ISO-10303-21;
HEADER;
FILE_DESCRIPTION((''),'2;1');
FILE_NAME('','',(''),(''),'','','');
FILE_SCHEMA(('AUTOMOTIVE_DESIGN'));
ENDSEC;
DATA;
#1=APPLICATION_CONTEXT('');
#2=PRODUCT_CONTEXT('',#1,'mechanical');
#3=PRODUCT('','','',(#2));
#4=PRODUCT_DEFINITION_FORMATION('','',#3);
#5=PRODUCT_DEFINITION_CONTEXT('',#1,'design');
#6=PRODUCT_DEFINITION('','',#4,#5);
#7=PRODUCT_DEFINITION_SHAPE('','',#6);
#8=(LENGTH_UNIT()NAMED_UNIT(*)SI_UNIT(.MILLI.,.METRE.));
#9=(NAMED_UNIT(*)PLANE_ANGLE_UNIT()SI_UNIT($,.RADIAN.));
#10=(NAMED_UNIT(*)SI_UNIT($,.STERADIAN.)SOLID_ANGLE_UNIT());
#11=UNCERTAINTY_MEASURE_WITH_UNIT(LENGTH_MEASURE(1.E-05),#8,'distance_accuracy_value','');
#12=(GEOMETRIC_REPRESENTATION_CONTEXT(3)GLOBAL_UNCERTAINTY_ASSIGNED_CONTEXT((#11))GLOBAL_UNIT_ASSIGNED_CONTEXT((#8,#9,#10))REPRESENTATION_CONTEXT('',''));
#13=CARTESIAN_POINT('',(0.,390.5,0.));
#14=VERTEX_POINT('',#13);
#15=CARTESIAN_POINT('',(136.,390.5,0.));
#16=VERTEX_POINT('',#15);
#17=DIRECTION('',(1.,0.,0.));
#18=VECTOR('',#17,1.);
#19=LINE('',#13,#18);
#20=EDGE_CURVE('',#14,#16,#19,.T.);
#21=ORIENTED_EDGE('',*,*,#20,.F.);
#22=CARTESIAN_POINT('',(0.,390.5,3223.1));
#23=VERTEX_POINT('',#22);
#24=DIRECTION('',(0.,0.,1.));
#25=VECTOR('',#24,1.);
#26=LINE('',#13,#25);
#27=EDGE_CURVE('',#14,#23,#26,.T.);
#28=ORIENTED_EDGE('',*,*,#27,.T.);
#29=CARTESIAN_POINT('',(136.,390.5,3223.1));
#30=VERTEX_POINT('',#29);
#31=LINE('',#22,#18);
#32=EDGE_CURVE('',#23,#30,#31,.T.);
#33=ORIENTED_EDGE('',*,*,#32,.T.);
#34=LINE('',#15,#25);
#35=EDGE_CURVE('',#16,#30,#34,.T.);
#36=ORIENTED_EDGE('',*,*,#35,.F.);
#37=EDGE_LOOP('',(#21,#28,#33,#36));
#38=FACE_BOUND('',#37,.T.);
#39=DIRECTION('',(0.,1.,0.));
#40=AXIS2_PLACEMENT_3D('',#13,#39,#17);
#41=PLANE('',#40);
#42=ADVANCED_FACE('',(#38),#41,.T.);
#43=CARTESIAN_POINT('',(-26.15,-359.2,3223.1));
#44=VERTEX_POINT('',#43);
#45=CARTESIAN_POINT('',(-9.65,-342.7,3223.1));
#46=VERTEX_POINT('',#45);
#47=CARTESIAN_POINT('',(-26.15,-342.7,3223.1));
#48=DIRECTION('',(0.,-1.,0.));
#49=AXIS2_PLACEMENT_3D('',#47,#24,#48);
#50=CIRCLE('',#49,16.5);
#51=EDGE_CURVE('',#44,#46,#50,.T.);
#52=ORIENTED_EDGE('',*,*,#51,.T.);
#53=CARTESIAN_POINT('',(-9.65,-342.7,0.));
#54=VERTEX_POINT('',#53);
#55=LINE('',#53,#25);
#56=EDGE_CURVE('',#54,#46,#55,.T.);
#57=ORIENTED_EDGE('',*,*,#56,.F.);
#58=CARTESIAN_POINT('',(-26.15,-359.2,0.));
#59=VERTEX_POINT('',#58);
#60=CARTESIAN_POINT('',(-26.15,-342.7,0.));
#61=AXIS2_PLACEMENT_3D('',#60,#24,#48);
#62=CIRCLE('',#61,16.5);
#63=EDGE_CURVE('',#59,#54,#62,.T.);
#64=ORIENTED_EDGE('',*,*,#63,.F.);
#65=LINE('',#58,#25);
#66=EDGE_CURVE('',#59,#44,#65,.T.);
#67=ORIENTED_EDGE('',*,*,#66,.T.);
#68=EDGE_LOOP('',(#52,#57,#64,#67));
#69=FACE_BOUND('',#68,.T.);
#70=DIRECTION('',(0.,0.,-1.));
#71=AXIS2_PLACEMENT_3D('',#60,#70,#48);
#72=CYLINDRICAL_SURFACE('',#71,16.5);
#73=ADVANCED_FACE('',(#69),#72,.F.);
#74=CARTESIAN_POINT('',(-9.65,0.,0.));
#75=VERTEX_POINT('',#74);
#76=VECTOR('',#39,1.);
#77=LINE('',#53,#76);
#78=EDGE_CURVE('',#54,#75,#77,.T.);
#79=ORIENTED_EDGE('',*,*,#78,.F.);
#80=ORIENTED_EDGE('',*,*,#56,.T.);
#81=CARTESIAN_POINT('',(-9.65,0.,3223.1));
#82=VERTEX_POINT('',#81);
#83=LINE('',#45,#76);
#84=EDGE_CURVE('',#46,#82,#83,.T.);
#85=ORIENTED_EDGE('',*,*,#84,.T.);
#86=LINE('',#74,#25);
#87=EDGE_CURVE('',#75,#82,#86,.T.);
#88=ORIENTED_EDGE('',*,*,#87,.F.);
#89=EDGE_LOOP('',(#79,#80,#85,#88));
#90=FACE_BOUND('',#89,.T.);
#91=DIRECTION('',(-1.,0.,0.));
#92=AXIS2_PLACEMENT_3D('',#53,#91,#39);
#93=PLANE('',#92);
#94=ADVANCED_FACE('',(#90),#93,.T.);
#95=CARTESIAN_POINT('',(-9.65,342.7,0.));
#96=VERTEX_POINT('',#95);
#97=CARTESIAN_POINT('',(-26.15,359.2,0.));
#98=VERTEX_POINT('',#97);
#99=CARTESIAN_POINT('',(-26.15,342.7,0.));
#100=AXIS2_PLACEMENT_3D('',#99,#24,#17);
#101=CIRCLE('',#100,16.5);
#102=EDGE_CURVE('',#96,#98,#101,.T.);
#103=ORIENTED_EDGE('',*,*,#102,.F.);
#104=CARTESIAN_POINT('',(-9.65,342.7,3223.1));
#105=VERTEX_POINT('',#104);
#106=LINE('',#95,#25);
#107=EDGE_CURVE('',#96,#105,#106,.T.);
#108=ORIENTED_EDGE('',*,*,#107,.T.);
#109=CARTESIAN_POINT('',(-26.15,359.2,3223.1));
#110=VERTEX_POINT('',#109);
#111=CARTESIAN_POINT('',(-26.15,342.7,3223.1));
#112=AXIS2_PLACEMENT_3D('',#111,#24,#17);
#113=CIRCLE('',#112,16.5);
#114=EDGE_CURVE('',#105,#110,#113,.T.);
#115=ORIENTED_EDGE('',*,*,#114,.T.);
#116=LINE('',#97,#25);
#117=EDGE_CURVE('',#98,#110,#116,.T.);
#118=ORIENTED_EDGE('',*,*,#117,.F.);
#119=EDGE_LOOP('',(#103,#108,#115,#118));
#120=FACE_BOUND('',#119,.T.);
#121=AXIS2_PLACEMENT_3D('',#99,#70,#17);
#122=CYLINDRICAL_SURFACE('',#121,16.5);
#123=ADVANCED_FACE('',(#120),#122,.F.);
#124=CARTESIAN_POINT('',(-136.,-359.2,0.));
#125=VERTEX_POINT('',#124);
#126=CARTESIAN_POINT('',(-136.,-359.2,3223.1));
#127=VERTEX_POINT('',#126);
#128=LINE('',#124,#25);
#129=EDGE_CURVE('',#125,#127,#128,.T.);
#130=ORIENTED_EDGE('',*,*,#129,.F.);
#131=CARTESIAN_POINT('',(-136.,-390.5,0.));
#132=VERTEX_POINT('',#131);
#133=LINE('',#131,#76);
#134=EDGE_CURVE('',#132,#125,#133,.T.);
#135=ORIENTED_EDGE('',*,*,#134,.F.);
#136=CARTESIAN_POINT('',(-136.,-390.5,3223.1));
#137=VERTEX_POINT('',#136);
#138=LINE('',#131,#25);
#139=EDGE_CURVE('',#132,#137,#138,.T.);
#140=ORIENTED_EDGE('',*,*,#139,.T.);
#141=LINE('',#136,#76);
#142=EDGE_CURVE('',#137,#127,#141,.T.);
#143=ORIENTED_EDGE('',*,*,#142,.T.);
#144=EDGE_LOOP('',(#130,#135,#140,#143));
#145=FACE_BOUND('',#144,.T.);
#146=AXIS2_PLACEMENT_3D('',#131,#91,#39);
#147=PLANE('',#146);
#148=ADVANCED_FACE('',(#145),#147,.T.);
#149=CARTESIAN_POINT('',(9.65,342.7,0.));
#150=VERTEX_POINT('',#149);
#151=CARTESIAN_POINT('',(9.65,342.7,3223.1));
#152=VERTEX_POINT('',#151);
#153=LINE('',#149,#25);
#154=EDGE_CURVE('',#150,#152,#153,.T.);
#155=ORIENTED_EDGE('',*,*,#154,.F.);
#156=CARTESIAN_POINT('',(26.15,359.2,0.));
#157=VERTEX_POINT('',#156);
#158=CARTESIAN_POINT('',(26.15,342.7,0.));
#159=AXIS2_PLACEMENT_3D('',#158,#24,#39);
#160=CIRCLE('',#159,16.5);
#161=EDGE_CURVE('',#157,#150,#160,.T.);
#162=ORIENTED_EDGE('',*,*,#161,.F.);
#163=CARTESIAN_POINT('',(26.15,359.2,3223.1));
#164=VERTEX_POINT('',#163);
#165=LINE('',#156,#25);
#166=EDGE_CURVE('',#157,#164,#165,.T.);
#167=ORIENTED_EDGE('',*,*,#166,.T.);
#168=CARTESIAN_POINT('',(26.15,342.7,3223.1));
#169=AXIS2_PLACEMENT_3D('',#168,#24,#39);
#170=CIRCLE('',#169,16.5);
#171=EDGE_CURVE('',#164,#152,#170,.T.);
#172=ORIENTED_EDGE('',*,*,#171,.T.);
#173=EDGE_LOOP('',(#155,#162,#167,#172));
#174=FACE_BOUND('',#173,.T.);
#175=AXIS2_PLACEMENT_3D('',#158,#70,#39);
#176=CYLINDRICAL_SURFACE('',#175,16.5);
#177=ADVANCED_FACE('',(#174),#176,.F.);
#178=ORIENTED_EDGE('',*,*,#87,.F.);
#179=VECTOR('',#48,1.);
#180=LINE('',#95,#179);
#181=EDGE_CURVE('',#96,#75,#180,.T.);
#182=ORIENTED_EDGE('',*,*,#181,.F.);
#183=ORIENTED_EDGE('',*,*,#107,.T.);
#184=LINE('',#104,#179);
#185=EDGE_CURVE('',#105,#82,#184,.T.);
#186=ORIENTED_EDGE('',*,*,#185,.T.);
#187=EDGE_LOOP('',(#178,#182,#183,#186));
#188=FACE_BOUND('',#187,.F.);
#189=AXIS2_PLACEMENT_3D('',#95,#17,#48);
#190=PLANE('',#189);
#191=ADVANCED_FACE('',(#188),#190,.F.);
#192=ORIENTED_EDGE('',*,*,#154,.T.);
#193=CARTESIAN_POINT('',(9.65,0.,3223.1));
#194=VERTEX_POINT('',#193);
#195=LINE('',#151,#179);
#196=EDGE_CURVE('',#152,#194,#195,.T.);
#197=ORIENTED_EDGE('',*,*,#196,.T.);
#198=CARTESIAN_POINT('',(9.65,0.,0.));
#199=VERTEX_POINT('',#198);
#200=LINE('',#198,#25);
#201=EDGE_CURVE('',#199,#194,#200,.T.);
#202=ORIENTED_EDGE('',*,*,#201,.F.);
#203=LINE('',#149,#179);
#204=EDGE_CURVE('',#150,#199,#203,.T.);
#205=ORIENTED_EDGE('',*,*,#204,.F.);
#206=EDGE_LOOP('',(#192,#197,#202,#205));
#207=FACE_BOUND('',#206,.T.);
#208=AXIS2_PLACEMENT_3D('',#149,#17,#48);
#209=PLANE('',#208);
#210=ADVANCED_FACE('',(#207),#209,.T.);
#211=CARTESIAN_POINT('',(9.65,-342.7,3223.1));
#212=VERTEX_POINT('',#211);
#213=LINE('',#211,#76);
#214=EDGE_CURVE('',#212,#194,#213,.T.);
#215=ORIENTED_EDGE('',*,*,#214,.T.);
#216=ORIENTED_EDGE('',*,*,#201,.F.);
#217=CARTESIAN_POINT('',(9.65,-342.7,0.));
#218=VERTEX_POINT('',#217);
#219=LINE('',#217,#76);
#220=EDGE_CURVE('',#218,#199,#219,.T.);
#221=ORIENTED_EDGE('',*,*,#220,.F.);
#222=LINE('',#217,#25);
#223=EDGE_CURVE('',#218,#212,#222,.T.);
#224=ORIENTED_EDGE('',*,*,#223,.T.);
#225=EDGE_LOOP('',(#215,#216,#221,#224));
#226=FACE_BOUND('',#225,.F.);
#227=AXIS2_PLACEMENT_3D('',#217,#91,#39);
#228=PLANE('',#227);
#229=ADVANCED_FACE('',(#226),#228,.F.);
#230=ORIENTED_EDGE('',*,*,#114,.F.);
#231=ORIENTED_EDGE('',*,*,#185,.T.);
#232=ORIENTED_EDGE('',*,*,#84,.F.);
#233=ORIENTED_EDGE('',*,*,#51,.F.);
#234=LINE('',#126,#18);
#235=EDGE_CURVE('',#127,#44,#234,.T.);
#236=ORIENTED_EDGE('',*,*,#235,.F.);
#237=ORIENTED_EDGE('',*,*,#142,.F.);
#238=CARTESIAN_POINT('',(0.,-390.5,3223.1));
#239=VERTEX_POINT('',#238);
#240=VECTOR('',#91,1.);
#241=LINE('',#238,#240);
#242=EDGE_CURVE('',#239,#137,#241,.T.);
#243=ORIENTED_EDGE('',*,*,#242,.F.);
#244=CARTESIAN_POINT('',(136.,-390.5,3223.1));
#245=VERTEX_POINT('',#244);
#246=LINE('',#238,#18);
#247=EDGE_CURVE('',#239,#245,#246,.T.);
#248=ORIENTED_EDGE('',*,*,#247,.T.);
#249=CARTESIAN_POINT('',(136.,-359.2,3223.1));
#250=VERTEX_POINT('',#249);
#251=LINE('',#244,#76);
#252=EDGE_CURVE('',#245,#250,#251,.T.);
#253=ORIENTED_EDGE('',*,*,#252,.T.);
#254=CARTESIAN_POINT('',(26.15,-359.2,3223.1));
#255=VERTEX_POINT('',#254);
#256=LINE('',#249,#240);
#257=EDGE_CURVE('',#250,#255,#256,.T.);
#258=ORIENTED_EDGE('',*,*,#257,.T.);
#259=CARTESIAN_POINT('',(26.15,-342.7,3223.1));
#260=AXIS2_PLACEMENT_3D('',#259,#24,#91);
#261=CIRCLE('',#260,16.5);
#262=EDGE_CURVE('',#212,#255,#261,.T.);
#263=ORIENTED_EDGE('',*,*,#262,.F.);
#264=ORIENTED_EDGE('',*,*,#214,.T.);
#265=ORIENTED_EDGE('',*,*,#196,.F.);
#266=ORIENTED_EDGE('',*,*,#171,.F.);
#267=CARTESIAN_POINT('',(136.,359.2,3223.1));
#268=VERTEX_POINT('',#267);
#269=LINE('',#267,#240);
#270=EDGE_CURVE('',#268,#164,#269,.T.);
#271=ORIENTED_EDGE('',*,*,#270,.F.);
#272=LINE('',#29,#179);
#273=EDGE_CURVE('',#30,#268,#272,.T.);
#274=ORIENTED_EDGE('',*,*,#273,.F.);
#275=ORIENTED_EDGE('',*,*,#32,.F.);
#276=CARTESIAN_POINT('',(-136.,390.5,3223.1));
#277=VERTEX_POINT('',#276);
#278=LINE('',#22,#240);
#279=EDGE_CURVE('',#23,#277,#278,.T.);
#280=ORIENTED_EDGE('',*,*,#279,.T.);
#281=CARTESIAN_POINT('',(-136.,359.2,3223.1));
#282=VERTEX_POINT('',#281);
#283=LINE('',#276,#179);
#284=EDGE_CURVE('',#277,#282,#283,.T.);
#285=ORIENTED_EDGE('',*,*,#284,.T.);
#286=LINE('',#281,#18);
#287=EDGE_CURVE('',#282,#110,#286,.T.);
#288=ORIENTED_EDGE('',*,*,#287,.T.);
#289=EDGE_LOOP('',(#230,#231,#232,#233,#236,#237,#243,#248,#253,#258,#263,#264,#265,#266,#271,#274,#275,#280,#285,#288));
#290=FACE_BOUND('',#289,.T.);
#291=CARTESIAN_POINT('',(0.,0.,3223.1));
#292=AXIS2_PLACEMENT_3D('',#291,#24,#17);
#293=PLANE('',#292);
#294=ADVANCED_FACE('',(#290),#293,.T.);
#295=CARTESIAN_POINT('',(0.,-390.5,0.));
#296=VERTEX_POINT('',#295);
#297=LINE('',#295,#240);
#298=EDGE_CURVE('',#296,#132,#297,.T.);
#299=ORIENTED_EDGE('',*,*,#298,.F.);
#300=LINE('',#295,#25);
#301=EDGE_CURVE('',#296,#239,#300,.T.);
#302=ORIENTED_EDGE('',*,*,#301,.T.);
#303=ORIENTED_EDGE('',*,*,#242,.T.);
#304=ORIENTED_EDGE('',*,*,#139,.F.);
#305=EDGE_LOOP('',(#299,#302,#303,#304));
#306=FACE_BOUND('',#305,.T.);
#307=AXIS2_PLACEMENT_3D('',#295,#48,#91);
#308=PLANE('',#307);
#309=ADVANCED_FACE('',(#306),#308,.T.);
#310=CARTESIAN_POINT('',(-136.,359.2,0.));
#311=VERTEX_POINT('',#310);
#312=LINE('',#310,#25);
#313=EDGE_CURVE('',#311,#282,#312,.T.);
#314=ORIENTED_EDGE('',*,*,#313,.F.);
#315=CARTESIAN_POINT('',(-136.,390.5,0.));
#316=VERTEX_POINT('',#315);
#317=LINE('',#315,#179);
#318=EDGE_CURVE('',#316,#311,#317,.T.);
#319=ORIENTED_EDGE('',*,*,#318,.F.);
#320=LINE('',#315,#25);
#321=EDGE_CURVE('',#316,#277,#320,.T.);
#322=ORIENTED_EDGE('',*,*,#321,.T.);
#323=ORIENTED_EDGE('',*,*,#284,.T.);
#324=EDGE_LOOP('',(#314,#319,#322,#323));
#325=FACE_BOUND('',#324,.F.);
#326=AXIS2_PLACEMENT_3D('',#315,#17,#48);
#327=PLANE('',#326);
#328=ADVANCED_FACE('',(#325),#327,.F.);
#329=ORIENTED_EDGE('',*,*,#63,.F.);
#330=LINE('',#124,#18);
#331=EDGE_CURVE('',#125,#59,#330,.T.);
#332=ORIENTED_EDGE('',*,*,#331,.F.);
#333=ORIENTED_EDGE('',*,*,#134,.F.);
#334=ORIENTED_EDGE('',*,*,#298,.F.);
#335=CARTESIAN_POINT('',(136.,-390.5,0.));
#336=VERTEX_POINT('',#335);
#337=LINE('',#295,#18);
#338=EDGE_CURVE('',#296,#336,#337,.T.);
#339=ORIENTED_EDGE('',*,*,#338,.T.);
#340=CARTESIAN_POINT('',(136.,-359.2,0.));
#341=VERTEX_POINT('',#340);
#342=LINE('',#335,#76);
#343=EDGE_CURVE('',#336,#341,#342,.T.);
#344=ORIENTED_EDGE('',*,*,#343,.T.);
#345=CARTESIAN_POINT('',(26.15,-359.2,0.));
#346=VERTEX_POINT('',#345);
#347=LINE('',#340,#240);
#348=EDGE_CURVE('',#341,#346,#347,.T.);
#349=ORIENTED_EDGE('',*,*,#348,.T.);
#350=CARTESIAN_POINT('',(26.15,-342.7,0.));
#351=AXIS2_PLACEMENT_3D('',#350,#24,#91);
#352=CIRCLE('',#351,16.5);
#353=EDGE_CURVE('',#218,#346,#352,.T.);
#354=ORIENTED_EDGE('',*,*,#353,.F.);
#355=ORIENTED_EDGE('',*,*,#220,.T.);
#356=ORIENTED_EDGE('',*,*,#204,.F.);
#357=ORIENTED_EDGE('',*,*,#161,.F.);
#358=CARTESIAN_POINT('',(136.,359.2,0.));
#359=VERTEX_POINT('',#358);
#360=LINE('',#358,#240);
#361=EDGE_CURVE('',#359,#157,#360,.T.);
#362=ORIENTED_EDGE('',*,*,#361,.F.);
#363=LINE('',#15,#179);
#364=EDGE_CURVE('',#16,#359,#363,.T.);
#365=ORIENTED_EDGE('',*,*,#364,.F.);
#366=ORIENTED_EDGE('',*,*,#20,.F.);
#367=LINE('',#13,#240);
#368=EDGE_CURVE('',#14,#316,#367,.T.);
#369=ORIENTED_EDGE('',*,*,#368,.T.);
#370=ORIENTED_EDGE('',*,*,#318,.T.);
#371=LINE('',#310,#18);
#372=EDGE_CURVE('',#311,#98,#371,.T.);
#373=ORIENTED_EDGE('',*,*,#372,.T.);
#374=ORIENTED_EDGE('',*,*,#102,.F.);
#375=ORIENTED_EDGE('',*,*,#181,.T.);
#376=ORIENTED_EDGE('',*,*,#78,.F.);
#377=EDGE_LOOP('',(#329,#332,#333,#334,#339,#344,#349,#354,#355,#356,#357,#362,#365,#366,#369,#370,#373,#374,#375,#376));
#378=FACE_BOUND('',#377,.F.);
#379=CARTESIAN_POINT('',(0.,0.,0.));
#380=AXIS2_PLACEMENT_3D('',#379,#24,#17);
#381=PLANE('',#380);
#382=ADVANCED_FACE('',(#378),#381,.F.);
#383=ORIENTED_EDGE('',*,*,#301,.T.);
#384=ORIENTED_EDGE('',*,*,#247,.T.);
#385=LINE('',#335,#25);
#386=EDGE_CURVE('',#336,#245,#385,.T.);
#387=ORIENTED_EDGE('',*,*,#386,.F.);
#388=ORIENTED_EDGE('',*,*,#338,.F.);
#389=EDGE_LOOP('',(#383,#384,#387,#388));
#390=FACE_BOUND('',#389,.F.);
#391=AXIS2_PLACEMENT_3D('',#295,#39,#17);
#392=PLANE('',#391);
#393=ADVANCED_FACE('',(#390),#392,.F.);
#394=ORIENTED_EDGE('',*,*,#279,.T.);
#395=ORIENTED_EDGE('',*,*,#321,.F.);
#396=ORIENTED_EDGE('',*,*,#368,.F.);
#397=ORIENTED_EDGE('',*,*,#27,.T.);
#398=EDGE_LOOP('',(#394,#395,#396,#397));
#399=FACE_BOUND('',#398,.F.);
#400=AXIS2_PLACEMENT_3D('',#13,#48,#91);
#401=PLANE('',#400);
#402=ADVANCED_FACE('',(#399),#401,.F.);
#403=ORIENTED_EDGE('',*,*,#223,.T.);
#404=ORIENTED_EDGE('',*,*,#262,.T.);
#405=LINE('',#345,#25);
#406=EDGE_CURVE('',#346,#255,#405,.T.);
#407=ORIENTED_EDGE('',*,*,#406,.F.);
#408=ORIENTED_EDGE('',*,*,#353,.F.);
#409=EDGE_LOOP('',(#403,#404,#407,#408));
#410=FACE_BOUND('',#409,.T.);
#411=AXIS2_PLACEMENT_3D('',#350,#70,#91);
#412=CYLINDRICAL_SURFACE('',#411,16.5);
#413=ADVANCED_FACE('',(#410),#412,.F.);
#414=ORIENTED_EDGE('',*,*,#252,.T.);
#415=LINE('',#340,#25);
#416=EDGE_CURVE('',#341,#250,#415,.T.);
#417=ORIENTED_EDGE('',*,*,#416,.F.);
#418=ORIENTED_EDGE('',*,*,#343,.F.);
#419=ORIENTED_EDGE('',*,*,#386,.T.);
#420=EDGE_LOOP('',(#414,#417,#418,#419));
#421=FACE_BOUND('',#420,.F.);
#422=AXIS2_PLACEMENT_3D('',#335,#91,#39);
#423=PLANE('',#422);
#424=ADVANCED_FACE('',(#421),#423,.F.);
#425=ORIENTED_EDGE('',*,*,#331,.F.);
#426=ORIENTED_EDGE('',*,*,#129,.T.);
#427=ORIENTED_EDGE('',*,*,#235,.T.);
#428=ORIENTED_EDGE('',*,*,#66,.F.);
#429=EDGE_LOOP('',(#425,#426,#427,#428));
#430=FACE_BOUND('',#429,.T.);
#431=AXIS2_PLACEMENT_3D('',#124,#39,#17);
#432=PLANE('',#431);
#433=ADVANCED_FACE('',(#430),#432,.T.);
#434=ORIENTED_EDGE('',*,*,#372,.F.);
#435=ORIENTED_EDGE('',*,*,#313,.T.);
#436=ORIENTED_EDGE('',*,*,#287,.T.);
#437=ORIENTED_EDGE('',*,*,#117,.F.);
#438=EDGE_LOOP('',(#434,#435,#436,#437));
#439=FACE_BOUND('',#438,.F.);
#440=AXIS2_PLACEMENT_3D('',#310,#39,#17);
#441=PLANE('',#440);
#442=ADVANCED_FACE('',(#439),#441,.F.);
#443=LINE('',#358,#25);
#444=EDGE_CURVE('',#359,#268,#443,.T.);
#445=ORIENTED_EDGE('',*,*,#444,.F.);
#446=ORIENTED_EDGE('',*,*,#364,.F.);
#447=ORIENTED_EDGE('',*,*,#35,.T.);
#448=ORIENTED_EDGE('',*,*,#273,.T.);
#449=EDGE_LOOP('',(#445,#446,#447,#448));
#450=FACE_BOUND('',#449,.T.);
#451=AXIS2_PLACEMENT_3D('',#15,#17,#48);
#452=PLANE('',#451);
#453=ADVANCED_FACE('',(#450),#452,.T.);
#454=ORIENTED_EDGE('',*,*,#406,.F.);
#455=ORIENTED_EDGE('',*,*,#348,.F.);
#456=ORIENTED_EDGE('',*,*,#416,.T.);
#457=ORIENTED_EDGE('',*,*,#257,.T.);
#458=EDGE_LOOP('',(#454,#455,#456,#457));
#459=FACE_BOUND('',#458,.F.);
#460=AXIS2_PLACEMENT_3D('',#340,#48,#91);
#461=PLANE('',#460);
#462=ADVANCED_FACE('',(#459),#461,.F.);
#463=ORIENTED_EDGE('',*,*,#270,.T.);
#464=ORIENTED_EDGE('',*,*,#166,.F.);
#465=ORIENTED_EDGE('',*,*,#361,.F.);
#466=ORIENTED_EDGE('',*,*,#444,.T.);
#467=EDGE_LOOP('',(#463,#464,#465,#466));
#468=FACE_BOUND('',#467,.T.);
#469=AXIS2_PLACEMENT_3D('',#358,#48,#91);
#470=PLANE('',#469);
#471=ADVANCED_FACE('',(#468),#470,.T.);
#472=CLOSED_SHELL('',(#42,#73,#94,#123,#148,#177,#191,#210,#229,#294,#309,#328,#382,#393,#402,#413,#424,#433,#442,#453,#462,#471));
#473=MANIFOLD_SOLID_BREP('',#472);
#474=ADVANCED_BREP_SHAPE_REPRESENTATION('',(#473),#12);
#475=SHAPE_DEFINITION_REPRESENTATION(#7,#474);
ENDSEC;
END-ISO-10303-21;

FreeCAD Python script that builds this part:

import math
import FreeCAD as App
import Part
import Sketcher

V = App.Vector
Q = App.Units.Quantity

doc = App.newDocument("Part")
body = doc.addObject("PartDesign::Body", "Body")

# Sketch on XY plane
sketch1 = body.newObject("Sketcher::SketchObject", "Sketch")
sketch1.AttachmentSupport = (doc.getObject("XY_Plane"), [""])
sketch1.MapMode = "FlatFace"
sketch1.addGeometry([
    Part.LineSegment(V(-136, -359, 0), V(-136, -390, 0)),  # 0
    Part.LineSegment(V(-136, -390, 0), V(136, -390, 0)),  # 1
    Part.LineSegment(V(136, -390, 0), V(136, -359, 0)),  # 2
    Part.LineSegment(V(136, -359, 0), V(26, -359, 0)),  # 3
    Part.ArcOfCircle(Part.Circle(V(26, -343, 0), V(0, 0, 1), 16), math.radians(180), math.radians(270)),  # 4
    Part.LineSegment(V(10, -343, 0), V(10, 343, 0)),  # 5
    Part.ArcOfCircle(Part.Circle(V(26, 343, 0), V(0, 0, 1), 16), math.radians(90), math.radians(180)),  # 6
    Part.LineSegment(V(26, 359, 0), V(136, 359, 0)),  # 7
    Part.LineSegment(V(136, 359, 0), V(136, 390, 0)),  # 8
    Part.LineSegment(V(136, 390, 0), V(-136, 390, 0)),  # 9
    Part.LineSegment(V(-136, 390, 0), V(-136, 359, 0)),  # 10
    Part.LineSegment(V(-136, 359, 0), V(-26, 359, 0)),  # 11
    Part.ArcOfCircle(Part.Circle(V(-26, 343, 0), V(0, 0, 1), 16), math.radians(0), math.radians(90)),  # 12
    Part.LineSegment(V(-10, 343, 0), V(-10, -343, 0)),  # 13
    Part.ArcOfCircle(Part.Circle(V(-26, -343, 0), V(0, 0, 1), 16), math.radians(-90), math.radians(0)),  # 14
    Part.LineSegment(V(-26, -359, 0), V(-136, -359, 0)),  # 15
], False)
sketch1.addConstraint([
    Sketcher.Constraint("Coincident", 0, 2, 1, 1),
    Sketcher.Constraint("Coincident", 1, 2, 2, 1),
    Sketcher.Constraint("Coincident", 2, 2, 3, 1),
    Sketcher.Constraint("Tangent", 3, 2, 4, 2),
    Sketcher.Constraint("Tangent", 4, 1, 5, 1),
    Sketcher.Constraint("Tangent", 5, 2, 6, 2),
    Sketcher.Constraint("Tangent", 6, 1, 7, 1),
    Sketcher.Constraint("Coincident", 7, 2, 8, 1),
    Sketcher.Constraint("Coincident", 8, 2, 9, 1),
    Sketcher.Constraint("Coincident", 9, 2, 10, 1),
    Sketcher.Constraint("Coincident", 10, 2, 11, 1),
    Sketcher.Constraint("Tangent", 11, 2, 12, 2),
    Sketcher.Constraint("Tangent", 12, 1, 13, 1),
    Sketcher.Constraint("Tangent", 13, 2, 14, 2),
    Sketcher.Constraint("Tangent", 14, 1, 15, 1),
    Sketcher.Constraint("Coincident", 15, 2, 0, 1),
    Sketcher.Constraint("Vertical", 0),
    Sketcher.Constraint("Horizontal", 1),
    Sketcher.Constraint("Vertical", 2),
    Sketcher.Constraint("Horizontal", 3),
    Sketcher.Constraint("Vertical", 5),
    Sketcher.Constraint("Horizontal", 7),
    Sketcher.Constraint("Vertical", 8),
    Sketcher.Constraint("Horizontal", 9),
    Sketcher.Constraint("Vertical", 10),
    Sketcher.Constraint("Horizontal", 11),
    Sketcher.Constraint("Vertical", 13),
    Sketcher.Constraint("Horizontal", 15),
    Sketcher.Constraint("Equal", 4, 6),
    Sketcher.Constraint("Equal", 6, 12),
    Sketcher.Constraint("Equal", 12, 14),
    Sketcher.Constraint("Symmetric", 4, 3, 12, 3, -1, 1),
    Sketcher.Constraint("Symmetric", 0, 2, 8, 2, -1, 1),
    Sketcher.Constraint("Symmetric", 7, 2, 10, 2, -2),
    Sketcher.Constraint("Symmetric", 2, 2, 15, 2, -2),
    Sketcher.Constraint("Radius", 4, Q("16.5 mm")),
    Sketcher.Constraint("DistanceY", 0, 2, 0, 1, Q("31.3 mm")),
    Sketcher.Constraint("DistanceX", 0, 2, -1, 1, Q("136 mm")),
    Sketcher.Constraint("DistanceY", 0, 2, -1, 1, Q("390.5 mm")),
    Sketcher.Constraint("DistanceX", -1, 1, 4, 1, Q("9.65 mm")),
])
pad1 = body.newObject("PartDesign::Pad", "Pad")
pad1.Profile = sketch1
pad1.Length = 3223.1

doc.recompute()
